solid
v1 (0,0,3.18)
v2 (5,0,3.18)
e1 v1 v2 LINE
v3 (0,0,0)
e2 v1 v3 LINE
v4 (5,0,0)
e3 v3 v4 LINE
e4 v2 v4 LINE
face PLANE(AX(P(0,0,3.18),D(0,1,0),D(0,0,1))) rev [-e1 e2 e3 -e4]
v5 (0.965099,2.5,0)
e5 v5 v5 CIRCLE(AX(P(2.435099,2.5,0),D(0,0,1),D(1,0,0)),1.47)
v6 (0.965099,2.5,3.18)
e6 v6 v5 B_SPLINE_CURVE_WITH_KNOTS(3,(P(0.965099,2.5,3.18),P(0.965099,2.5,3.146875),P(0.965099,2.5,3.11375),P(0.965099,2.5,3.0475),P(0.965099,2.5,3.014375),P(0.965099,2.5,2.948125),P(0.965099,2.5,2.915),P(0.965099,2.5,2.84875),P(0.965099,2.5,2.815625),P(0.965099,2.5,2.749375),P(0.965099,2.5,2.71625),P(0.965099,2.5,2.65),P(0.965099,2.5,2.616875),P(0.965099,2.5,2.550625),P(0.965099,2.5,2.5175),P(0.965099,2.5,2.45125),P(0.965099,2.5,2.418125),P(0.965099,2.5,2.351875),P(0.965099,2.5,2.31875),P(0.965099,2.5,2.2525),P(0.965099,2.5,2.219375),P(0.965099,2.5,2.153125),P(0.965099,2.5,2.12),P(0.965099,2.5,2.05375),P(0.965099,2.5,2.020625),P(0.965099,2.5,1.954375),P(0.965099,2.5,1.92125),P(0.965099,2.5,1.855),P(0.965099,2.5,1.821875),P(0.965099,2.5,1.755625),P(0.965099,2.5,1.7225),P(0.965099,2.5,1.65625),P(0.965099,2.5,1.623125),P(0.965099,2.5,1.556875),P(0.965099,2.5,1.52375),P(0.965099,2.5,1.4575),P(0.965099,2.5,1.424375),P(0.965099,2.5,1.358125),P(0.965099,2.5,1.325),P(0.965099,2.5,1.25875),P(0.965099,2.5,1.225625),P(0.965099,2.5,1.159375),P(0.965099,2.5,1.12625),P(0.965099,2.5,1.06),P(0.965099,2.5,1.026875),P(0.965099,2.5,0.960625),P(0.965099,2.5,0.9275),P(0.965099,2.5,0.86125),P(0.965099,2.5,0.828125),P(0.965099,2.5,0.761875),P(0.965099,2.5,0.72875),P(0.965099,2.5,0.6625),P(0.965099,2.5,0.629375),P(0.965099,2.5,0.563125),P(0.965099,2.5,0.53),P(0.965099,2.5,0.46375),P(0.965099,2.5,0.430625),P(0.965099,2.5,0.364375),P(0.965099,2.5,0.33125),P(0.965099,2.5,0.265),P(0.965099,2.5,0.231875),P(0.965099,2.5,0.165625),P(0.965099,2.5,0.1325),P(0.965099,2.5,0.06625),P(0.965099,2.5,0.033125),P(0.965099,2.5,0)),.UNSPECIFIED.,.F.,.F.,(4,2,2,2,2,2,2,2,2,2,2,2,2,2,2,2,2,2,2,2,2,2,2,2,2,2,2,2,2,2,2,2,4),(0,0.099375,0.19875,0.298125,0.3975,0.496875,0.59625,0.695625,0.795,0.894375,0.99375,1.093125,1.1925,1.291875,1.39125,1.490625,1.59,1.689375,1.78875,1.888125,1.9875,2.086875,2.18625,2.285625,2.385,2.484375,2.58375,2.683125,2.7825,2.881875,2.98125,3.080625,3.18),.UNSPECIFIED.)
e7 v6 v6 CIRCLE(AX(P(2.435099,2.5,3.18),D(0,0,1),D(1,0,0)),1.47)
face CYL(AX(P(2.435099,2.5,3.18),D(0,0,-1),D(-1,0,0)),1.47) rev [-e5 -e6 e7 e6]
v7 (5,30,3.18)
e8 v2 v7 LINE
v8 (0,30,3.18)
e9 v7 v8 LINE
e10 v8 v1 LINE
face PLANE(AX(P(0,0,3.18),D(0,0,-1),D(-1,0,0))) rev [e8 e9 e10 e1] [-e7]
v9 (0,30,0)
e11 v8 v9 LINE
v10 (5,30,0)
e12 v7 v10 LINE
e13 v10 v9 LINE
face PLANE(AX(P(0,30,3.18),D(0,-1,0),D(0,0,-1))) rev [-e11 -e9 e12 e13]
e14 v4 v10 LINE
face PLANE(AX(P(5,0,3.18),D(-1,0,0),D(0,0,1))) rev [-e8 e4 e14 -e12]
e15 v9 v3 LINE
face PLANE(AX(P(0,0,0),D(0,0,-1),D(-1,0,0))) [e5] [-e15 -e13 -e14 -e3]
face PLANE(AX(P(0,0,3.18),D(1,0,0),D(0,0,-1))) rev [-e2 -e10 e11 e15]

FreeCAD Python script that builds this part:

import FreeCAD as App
import Part
import Sketcher
from FreeCAD import Vector
Q = App.Units.Quantity

doc = App.newDocument("Part")
params = doc.addObject("Spreadsheet::Sheet", "Params")
for row, (alias, value) in enumerate([
    ("sketch1_diameter", "2.94 mm"),
    ("sketch1_width", "5 mm"),
    ("sketch1_height", "30 mm"),
    ("pad1_length", "3.18 mm"),
], start=1):
    params.set(f"A{row}", alias)
    params.set(f"B{row}", "=" + value)
    params.setAlias(f"B{row}", alias)

body = doc.addObject("PartDesign::Body", "Body")

# Sketch on XY plane
sketch1 = doc.addObject("Sketcher::SketchObject", "Sketch")
body.addObject(sketch1)
sketch1.AttachmentSupport = (doc.XY_Plane, [""])
sketch1.MapMode = "FlatFace"
sketch1.addGeometry(Part.LineSegment(Vector(0, 30, 0), Vector(0, 0, 0)), False)
sketch1.addGeometry(Part.LineSegment(Vector(0, 0, 0), Vector(5, 0, 0)), False)
sketch1.addGeometry(Part.LineSegment(Vector(5, 0, 0), Vector(5, 30, 0)), False)
sketch1.addGeometry(Part.LineSegment(Vector(5, 30, 0), Vector(0, 30, 0)), False)
sketch1.addGeometry(Part.Circle(Vector(2.435099, 2.5, 0), Vector(0, 0, 1), 1.47), False)
sketch1.addConstraint(Sketcher.Constraint("Coincident", 0, 2, 1, 1))
sketch1.addConstraint(Sketcher.Constraint("Coincident", 1, 2, 2, 1))
sketch1.addConstraint(Sketcher.Constraint("Coincident", 2, 2, 3, 1))
sketch1.addConstraint(Sketcher.Constraint("Coincident", 3, 2, 0, 1))
sketch1.addConstraint(Sketcher.Constraint("Vertical", 0))
sketch1.addConstraint(Sketcher.Constraint("Horizontal", 1))
sketch1.addConstraint(Sketcher.Constraint("Vertical", 2))
sketch1.addConstraint(Sketcher.Constraint("Horizontal", 3))
sketch1.addConstraint(Sketcher.Constraint("Coincident", 0, 2, -1, 1))
sketch1.addConstraint(Sketcher.Constraint("Diameter", 4, Q("2.94 mm")))
sketch1.addConstraint(Sketcher.Constraint("DistanceX", 1, 1, 1, 2, Q("5 mm")))
sketch1.addConstraint(Sketcher.Constraint("DistanceY", 0, 2, 0, 1, Q("30 mm")))
sketch1.addConstraint(Sketcher.Constraint("DistanceY", -1, 1, 4, 3, Q("2.5 mm")))
sketch1.addConstraint(Sketcher.Constraint("DistanceX", -1, 1, 4, 3, Q("2.435099 mm")))
sketch1.setExpression("Constraints[9]", "Params.sketch1_diameter")
sketch1.setExpression("Constraints[10]", "Params.sketch1_width")
sketch1.setExpression("Constraints[11]", "Params.sketch1_height")
pad1 = doc.addObject("PartDesign::Pad", "Pad")
body.addObject(pad1)
pad1.Profile = sketch1
pad1.setExpression("Length", "Params.pad1_length")

doc.recompute()
